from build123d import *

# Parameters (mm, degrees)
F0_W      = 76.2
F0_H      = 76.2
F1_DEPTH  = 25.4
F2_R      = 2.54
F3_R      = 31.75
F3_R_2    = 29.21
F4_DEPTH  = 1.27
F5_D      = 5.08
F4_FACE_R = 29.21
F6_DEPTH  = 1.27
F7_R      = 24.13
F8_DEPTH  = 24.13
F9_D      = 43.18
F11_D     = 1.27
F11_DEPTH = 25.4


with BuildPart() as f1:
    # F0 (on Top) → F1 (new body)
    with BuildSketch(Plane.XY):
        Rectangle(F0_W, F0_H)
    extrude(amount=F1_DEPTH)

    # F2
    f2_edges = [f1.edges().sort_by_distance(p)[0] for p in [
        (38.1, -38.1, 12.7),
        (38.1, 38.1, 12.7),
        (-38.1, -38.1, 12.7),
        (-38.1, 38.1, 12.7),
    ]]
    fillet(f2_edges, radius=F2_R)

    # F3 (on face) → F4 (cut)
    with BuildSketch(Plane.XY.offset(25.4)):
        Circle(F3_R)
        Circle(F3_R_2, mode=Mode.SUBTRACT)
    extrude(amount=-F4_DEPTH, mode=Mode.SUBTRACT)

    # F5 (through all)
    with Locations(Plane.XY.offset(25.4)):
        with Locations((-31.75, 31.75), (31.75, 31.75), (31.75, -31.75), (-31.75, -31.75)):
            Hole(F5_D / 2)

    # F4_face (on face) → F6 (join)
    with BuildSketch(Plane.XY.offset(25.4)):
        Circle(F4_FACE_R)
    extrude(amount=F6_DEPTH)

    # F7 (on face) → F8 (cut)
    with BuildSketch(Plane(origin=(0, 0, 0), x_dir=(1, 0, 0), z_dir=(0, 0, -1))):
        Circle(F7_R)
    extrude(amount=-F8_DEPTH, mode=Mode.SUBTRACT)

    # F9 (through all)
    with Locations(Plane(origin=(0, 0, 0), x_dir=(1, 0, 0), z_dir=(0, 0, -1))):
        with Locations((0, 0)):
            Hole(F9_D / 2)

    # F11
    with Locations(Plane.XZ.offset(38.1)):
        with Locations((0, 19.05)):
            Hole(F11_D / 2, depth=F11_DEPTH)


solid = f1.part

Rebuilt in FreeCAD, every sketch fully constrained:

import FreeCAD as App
import Part
import Sketcher
from FreeCAD import Vector
Q = App.Units.Quantity


def edges_at(feature, points):
    """Names of the edges that pass closest to the given points."""
    edges = feature.Shape.Edges
    near = lambda p: min(range(len(edges)), key=lambda i: edges[i].distToShape(Part.Vertex(*p))[0])
    return sorted({f"Edge{near(p) + 1}" for p in points})


def add_polygon(sketch, points):
    """Adds a closed chain of lines whose ends are joined by coincident constraints."""
    first, n = sketch.GeometryCount, len(points)
    for a, b in zip(points, points[1:] + points[:1]):
        sketch.addGeometry(Part.LineSegment(App.Vector(*a, 0), App.Vector(*b, 0)), False)
    for i in range(n):
        sketch.addConstraint(Sketcher.Constraint("Coincident", first + i, 2, first + (i + 1) % n, 1))

doc = App.newDocument("Part")
body = doc.addObject("PartDesign::Body", "Body")

# Sketch on XY plane
sketch1 = body.newObject("Sketcher::SketchObject", "Sketch")
sketch1.AttachmentSupport = (doc.getObject("XY_Plane"), [""])
sketch1.MapMode = "FlatFace"
add_polygon(sketch1, [(-38.1, 38.1), (-38.1, -38.1), (38.1, -38.1), (38.1, 38.1)])  # lines 0-3
sketch1.addConstraint(Sketcher.Constraint("Vertical", 0))
sketch1.addConstraint(Sketcher.Constraint("Horizontal", 1))
sketch1.addConstraint(Sketcher.Constraint("Vertical", 2))
sketch1.addConstraint(Sketcher.Constraint("Horizontal", 3))
sketch1.addConstraint(Sketcher.Constraint("Symmetric", 0, 2, 2, 2, -1, 1))
sketch1.addConstraint(Sketcher.Constraint("Equal", 3, 0))
sketch1.addConstraint(Sketcher.Constraint("DistanceX", 1, 1, 1, 2, Q("3 in")))
pad1 = body.newObject("PartDesign::Pad", "Pad")
pad1.Profile = sketch1
pad1.Length = Q("1 in")
doc.recompute()

fillet = body.newObject("PartDesign::Fillet", "Fillet")
fillet.Base = (pad1, edges_at(pad1, [
    (38.1, -38.1, 12.7),
    (38.1, 38.1, 12.7),
    (-38.1, -38.1, 12.7),
    (-38.1, 38.1, 12.7),
]))
fillet.Radius = Q("0.1 in")

# Sketch on XY plane
sketch2 = body.newObject("Sketcher::SketchObject", "Sketch001")
sketch2.AttachmentSupport = (doc.getObject("XY_Plane"), [""])
sketch2.MapMode = "FlatFace"
sketch2.AttachmentOffset = App.Placement(Vector(0, 0, 1 * 25.4), App.Rotation())
sketch2.addGeometry(Part.Circle(Vector(0, 0, 0), Vector(0, 0, 1), 31.75), False)
sketch2.addGeometry(Part.Circle(Vector(0, 0, 0), Vector(0, 0, 1), 29.21), False)
sketch2.addConstraint(Sketcher.Constraint("Coincident", 0, 3, -1, 1))
sketch2.addConstraint(Sketcher.Constraint("Coincident", 1, 3, -1, 1))
sketch2.addConstraint(Sketcher.Constraint("Diameter", 0, Q("2.5 in")))
sketch2.addConstraint(Sketcher.Constraint("Diameter", 1, Q("2.3 in")))
pocket1 = body.newObject("PartDesign::Pocket", "Pocket")
pocket1.Profile = sketch2
pocket1.Length = Q("0.05 in")

# Sketch on XY plane
sketch3 = body.newObject("Sketcher::SketchObject", "Sketch002")
sketch3.AttachmentSupport = (doc.getObject("XY_Plane"), [""])
sketch3.MapMode = "FlatFace"
sketch3.AttachmentOffset = App.Placement(Vector(0, 0, 1 * 25.4), App.Rotation())
sketch3.addGeometry(Part.Circle(Vector(-31.75, 31.75, 0), Vector(0, 0, 1), 2.54), False)
sketch3.addGeometry(Part.Circle(Vector(31.75, 31.75, 0), Vector(0, 0, 1), 2.54), False)
sketch3.addGeometry(Part.Circle(Vector(31.75, -31.75, 0), Vector(0, 0, 1), 2.54), False)
sketch3.addGeometry(Part.Circle(Vector(-31.75, -31.75, 0), Vector(0, 0, 1), 2.54), False)
sketch3.addConstraint(Sketcher.Constraint("Equal", 0, 1))
sketch3.addConstraint(Sketcher.Constraint("Equal", 1, 2))
sketch3.addConstraint(Sketcher.Constraint("Equal", 2, 3))
sketch3.addConstraint(Sketcher.Constraint("Symmetric", 0, 3, 2, 3, -1, 1))
sketch3.addConstraint(Sketcher.Constraint("Symmetric", 1, 3, 3, 3, -1, 1))
sketch3.addConstraint(Sketcher.Constraint("Symmetric", 0, 3, 1, 3, -2))
sketch3.addConstraint(Sketcher.Constraint("Diameter", 0, Q("0.2 in")))
sketch3.addConstraint(Sketcher.Constraint("DistanceX", 0, 3, 1, 3, Q("2.5 in")))
sketch3.addConstraint(Sketcher.Constraint("DistanceY", 2, 3, 1, 3, Q("2.5 in")))
doc.recompute()
hole = body.newObject("PartDesign::Hole", "Hole")
hole.Profile = sketch3
hole.ThreadType = "None"
hole.Diameter = Q("0.2 in")
hole.DepthType = "ThroughAll"

# Sketch on XY plane
sketch4 = body.newObject("Sketcher::SketchObject", "Sketch003")
sketch4.AttachmentSupport = (doc.getObject("XY_Plane"), [""])
sketch4.MapMode = "FlatFace"
sketch4.AttachmentOffset = App.Placement(Vector(0, 0, 1 * 25.4), App.Rotation())
sketch4.addGeometry(Part.Circle(Vector(0, 0, 0), Vector(0, 0, 1), 29.21), False)
sketch4.addConstraint(Sketcher.Constraint("Coincident", 0, 3, -1, 1))
sketch4.addConstraint(Sketcher.Constraint("Diameter", 0, Q("2.3 in")))
pad2 = body.newObject("PartDesign::Pad", "Pad001")
pad2.Profile = sketch4
pad2.Length = Q("0.05 in")

# Sketch on XY plane
sketch5 = body.newObject("Sketcher::SketchObject", "Sketch004")
sketch5.AttachmentSupport = (doc.getObject("XY_Plane"), [""])
sketch5.MapMode = "FlatFace"
sketch5.addGeometry(Part.Circle(Vector(0, 0, 0), Vector(0, 0, 1), 24.13), False)
sketch5.addConstraint(Sketcher.Constraint("Coincident", 0, 3, -1, 1))
sketch5.addConstraint(Sketcher.Constraint("Diameter", 0, Q("1.9 in")))
pocket2 = body.newObject("PartDesign::Pocket", "Pocket001")
pocket2.Profile = sketch5
pocket2.Length = Q("0.95 in")
pocket2.Reversed = True

# Sketch on XY plane
sketch6 = body.newObject("Sketcher::SketchObject", "Sketch005")
sketch6.AttachmentSupport = (doc.getObject("XY_Plane"), [""])
sketch6.MapMode = "FlatFace"
sketch6.addGeometry(Part.Circle(Vector(0, 0, 0), Vector(0, 0, 1), 21.59), False)
sketch6.addConstraint(Sketcher.Constraint("Coincident", 0, 3, -1, 1))
sketch6.addConstraint(Sketcher.Constraint("Diameter", 0, Q("1.7 in")))
doc.recompute()
hole2 = body.newObject("PartDesign::Hole", "Hole001")
hole2.Profile = sketch6
hole2.ThreadType = "None"
hole2.Diameter = Q("1.7 in")
hole2.DepthType = "ThroughAll"
hole2.Reversed = True

# Sketch on XZ plane
sketch7 = body.newObject("Sketcher::SketchObject", "Sketch006")
sketch7.AttachmentSupport = (doc.getObject("XZ_Plane"), [""])
sketch7.MapMode = "FlatFace"
sketch7.AttachmentOffset = App.Placement(Vector(0, 0, 1.5 * 25.4), App.Rotation())
sketch7.addGeometry(Part.Circle(Vector(0, 19.05, 0), Vector(0, 0, 1), 0.635), False)
sketch7.addConstraint(Sketcher.Constraint("PointOnObject", 0, 3, -2))
sketch7.addConstraint(Sketcher.Constraint("Diameter", 0, Q("0.05 in")))
sketch7.addConstraint(Sketcher.Constraint("DistanceY", -1, 1, 0, 3, Q("0.75 in")))
doc.recompute()
hole3 = body.newObject("PartDesign::Hole", "Hole002")
hole3.Profile = sketch7
hole3.ThreadType = "None"
hole3.Diameter = Q("0.05 in")
hole3.DepthType = "Dimension"
hole3.Depth = Q("1 in")
hole3.DrillPoint = "Flat"

doc.recompute()
